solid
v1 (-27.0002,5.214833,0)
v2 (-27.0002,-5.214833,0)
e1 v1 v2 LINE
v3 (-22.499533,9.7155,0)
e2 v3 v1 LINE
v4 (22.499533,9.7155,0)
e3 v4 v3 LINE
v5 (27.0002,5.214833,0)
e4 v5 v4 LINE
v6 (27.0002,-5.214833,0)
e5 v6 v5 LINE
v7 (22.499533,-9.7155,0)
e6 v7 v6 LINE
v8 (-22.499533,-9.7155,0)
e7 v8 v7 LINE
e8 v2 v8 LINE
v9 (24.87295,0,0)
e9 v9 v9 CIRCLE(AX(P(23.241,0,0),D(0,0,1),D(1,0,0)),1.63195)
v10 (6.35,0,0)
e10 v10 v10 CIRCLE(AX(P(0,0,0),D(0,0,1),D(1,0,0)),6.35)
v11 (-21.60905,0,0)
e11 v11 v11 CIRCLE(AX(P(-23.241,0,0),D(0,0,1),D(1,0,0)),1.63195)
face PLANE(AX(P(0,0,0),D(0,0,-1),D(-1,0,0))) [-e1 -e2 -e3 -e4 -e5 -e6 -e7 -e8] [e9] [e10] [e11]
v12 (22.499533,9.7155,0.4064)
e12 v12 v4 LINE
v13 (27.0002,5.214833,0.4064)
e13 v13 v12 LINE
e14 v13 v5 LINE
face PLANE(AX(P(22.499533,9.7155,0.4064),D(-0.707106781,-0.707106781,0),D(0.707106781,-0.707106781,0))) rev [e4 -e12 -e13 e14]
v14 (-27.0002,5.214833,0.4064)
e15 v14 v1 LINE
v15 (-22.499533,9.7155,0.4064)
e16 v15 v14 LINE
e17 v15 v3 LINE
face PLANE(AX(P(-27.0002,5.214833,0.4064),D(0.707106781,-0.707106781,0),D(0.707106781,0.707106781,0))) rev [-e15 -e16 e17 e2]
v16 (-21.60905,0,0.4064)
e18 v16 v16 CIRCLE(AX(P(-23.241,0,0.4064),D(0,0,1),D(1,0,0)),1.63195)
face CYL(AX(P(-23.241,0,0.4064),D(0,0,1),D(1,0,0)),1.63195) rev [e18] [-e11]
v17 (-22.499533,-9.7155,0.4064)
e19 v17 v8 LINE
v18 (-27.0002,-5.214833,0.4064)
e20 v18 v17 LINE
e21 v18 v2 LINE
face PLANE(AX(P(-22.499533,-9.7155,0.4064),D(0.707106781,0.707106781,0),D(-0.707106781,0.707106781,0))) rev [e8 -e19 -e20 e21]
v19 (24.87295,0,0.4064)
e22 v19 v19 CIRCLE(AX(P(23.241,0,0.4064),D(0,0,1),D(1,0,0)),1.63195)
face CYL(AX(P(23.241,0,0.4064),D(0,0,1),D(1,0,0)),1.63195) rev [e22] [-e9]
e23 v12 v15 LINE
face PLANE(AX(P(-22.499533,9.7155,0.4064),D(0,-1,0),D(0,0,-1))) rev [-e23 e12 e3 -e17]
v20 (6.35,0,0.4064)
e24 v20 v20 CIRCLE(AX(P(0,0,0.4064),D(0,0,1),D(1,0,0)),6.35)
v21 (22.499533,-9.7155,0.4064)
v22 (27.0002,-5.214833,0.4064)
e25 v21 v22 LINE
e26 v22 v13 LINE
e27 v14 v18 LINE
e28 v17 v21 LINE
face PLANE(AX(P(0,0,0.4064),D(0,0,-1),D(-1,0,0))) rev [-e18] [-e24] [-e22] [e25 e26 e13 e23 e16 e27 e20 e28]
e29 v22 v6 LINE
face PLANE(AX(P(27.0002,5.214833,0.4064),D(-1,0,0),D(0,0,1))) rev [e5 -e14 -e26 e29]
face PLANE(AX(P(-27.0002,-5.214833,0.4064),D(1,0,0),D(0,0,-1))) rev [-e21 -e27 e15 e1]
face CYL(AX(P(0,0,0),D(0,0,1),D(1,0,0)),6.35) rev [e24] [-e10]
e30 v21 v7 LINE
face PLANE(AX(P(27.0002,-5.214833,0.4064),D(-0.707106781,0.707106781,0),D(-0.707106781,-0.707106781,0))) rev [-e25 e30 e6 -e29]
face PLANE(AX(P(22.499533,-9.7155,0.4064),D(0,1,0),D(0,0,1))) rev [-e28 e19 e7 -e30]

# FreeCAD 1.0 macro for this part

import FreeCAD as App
import Part
import Sketcher
Q = App.Units.Quantity

doc = App.newDocument("Part")
body = doc.addObject("PartDesign::Body", "Body")

# Sketch on XY plane
sketch1 = doc.addObject("Sketcher::SketchObject", "Sketch")
body.addObject(sketch1)
sketch1.AttachmentSupport = (doc.XY_Plane, [""])
sketch1.MapMode = "FlatFace"
sketch1.addGeometry(Part.LineSegment(App.Vector(27, 5, 0), App.Vector(22, 10, 0)), False)
sketch1.addGeometry(Part.LineSegment(App.Vector(22, 10, 0), App.Vector(-22, 10, 0)), False)
sketch1.addGeometry(Part.LineSegment(App.Vector(-22, 10, 0), App.Vector(-27, 5, 0)), False)
sketch1.addGeometry(Part.LineSegment(App.Vector(-27, 5, 0), App.Vector(-27, -5, 0)), False)
sketch1.addGeometry(Part.LineSegment(App.Vector(-27, -5, 0), App.Vector(-22, -10, 0)), False)
sketch1.addGeometry(Part.LineSegment(App.Vector(-22, -10, 0), App.Vector(22, -10, 0)), False)
sketch1.addGeometry(Part.LineSegment(App.Vector(22, -10, 0), App.Vector(27, -5, 0)), False)
sketch1.addGeometry(Part.LineSegment(App.Vector(27, -5, 0), App.Vector(27, 5, 0)), False)
sketch1.addConstraint(Sketcher.Constraint("Coincident", 0, 2, 1, 1))
sketch1.addConstraint(Sketcher.Constraint("Coincident", 1, 2, 2, 1))
sketch1.addConstraint(Sketcher.Constraint("Coincident", 2, 2, 3, 1))
sketch1.addConstraint(Sketcher.Constraint("Coincident", 3, 2, 4, 1))
sketch1.addConstraint(Sketcher.Constraint("Coincident", 4, 2, 5, 1))
sketch1.addConstraint(Sketcher.Constraint("Coincident", 5, 2, 6, 1))
sketch1.addConstraint(Sketcher.Constraint("Coincident", 6, 2, 7, 1))
sketch1.addConstraint(Sketcher.Constraint("Coincident", 7, 2, 0, 1))
sketch1.addConstraint(Sketcher.Constraint("Horizontal", 1))
sketch1.addConstraint(Sketcher.Constraint("Vertical", 3))
sketch1.addConstraint(Sketcher.Constraint("Horizontal", 5))
sketch1.addConstraint(Sketcher.Constraint("Vertical", 7))
sketch1.addConstraint(Sketcher.Constraint("Symmetric", 0, 2, 4, 2, -1, 1))
sketch1.addConstraint(Sketcher.Constraint("Symmetric", 2, 2, 6, 2, -1, 1))
sketch1.addConstraint(Sketcher.Constraint("Perpendicular", 0, 2))
sketch1.addConstraint(Sketcher.Constraint("Perpendicular", 2, 4))
sketch1.addConstraint(Sketcher.Constraint("Perpendicular", 4, 6))
sketch1.addConstraint(Sketcher.Constraint("Horizontal", 3, 2, 6, 2))
sketch1.addConstraint(Sketcher.Constraint("Vertical", 1, 2, 4, 2))
sketch1.addConstraint(Sketcher.Constraint("DistanceX", 2, 2, -1, 1, Q("1.063 in")))
sketch1.addConstraint(Sketcher.Constraint("DistanceY", 4, 2, 1, 2, Q("0.765 in")))
sketch1.addConstraint(Sketcher.Constraint("DistanceX", 1, 2, 1, 1, 44.999066))
pad1 = doc.addObject("PartDesign::Pad", "Pad")
body.addObject(pad1)
pad1.Profile = sketch1
pad1.Length = Q("0.016 in")

# Sketch on XY plane
sketch2 = doc.addObject("Sketcher::SketchObject", "Sketch001")
body.addObject(sketch2)
sketch2.AttachmentSupport = (doc.XY_Plane, [""])
sketch2.MapMode = "FlatFace"
sketch2.AttachmentOffset = App.Placement(App.Vector(0, 0, 0.016 * 25.4), App.Rotation())
sketch2.addGeometry(Part.Circle(App.Vector(-23.2, 0, 0), App.Vector(0, 0, 1), 1.6), False)
sketch2.addGeometry(Part.Circle(App.Vector(23.2, 0, 0), App.Vector(0, 0, 1), 1.6), False)
sketch2.addConstraint(Sketcher.Constraint("Equal", 0, 1))
sketch2.addConstraint(Sketcher.Constraint("Symmetric", 0, 3, 1, 3, -1, 1))
sketch2.addConstraint(Sketcher.Constraint("PointOnObject", 0, 3, -1))
sketch2.addConstraint(Sketcher.Constraint("Diameter", 0, Q("0.1285 in")))
sketch2.addConstraint(Sketcher.Constraint("DistanceX", 0, 3, 1, 3, Q("1.83 in")))
doc.recompute()
hole = doc.addObject("PartDesign::Hole", "Hole")
body.addObject(hole)
hole.Profile = sketch2
hole.ThreadType = "None"
hole.Diameter = Q("0.1285 in")
hole.DepthType = "ThroughAll"

# Sketch on XY plane
sketch3 = doc.addObject("Sketcher::SketchObject", "Sketch002")
body.addObject(sketch3)
sketch3.AttachmentSupport = (doc.XY_Plane, [""])
sketch3.MapMode = "FlatFace"
sketch3.AttachmentOffset = App.Placement(App.Vector(0, 0, 0.016 * 25.4), App.Rotation())
sketch3.addGeometry(Part.Circle(App.Vector(0, 0, 0), App.Vector(0, 0, 1), 6), False)
sketch3.addConstraint(Sketcher.Constraint("Coincident", 0, 3, -1, 1))
sketch3.addConstraint(Sketcher.Constraint("Diameter", 0, Q("0.5 in")))
pocket1 = doc.addObject("PartDesign::Pocket", "Pocket")
body.addObject(pocket1)
pocket1.Profile = sketch3
pocket1.Length = Q("0.016 in")

doc.recompute()
